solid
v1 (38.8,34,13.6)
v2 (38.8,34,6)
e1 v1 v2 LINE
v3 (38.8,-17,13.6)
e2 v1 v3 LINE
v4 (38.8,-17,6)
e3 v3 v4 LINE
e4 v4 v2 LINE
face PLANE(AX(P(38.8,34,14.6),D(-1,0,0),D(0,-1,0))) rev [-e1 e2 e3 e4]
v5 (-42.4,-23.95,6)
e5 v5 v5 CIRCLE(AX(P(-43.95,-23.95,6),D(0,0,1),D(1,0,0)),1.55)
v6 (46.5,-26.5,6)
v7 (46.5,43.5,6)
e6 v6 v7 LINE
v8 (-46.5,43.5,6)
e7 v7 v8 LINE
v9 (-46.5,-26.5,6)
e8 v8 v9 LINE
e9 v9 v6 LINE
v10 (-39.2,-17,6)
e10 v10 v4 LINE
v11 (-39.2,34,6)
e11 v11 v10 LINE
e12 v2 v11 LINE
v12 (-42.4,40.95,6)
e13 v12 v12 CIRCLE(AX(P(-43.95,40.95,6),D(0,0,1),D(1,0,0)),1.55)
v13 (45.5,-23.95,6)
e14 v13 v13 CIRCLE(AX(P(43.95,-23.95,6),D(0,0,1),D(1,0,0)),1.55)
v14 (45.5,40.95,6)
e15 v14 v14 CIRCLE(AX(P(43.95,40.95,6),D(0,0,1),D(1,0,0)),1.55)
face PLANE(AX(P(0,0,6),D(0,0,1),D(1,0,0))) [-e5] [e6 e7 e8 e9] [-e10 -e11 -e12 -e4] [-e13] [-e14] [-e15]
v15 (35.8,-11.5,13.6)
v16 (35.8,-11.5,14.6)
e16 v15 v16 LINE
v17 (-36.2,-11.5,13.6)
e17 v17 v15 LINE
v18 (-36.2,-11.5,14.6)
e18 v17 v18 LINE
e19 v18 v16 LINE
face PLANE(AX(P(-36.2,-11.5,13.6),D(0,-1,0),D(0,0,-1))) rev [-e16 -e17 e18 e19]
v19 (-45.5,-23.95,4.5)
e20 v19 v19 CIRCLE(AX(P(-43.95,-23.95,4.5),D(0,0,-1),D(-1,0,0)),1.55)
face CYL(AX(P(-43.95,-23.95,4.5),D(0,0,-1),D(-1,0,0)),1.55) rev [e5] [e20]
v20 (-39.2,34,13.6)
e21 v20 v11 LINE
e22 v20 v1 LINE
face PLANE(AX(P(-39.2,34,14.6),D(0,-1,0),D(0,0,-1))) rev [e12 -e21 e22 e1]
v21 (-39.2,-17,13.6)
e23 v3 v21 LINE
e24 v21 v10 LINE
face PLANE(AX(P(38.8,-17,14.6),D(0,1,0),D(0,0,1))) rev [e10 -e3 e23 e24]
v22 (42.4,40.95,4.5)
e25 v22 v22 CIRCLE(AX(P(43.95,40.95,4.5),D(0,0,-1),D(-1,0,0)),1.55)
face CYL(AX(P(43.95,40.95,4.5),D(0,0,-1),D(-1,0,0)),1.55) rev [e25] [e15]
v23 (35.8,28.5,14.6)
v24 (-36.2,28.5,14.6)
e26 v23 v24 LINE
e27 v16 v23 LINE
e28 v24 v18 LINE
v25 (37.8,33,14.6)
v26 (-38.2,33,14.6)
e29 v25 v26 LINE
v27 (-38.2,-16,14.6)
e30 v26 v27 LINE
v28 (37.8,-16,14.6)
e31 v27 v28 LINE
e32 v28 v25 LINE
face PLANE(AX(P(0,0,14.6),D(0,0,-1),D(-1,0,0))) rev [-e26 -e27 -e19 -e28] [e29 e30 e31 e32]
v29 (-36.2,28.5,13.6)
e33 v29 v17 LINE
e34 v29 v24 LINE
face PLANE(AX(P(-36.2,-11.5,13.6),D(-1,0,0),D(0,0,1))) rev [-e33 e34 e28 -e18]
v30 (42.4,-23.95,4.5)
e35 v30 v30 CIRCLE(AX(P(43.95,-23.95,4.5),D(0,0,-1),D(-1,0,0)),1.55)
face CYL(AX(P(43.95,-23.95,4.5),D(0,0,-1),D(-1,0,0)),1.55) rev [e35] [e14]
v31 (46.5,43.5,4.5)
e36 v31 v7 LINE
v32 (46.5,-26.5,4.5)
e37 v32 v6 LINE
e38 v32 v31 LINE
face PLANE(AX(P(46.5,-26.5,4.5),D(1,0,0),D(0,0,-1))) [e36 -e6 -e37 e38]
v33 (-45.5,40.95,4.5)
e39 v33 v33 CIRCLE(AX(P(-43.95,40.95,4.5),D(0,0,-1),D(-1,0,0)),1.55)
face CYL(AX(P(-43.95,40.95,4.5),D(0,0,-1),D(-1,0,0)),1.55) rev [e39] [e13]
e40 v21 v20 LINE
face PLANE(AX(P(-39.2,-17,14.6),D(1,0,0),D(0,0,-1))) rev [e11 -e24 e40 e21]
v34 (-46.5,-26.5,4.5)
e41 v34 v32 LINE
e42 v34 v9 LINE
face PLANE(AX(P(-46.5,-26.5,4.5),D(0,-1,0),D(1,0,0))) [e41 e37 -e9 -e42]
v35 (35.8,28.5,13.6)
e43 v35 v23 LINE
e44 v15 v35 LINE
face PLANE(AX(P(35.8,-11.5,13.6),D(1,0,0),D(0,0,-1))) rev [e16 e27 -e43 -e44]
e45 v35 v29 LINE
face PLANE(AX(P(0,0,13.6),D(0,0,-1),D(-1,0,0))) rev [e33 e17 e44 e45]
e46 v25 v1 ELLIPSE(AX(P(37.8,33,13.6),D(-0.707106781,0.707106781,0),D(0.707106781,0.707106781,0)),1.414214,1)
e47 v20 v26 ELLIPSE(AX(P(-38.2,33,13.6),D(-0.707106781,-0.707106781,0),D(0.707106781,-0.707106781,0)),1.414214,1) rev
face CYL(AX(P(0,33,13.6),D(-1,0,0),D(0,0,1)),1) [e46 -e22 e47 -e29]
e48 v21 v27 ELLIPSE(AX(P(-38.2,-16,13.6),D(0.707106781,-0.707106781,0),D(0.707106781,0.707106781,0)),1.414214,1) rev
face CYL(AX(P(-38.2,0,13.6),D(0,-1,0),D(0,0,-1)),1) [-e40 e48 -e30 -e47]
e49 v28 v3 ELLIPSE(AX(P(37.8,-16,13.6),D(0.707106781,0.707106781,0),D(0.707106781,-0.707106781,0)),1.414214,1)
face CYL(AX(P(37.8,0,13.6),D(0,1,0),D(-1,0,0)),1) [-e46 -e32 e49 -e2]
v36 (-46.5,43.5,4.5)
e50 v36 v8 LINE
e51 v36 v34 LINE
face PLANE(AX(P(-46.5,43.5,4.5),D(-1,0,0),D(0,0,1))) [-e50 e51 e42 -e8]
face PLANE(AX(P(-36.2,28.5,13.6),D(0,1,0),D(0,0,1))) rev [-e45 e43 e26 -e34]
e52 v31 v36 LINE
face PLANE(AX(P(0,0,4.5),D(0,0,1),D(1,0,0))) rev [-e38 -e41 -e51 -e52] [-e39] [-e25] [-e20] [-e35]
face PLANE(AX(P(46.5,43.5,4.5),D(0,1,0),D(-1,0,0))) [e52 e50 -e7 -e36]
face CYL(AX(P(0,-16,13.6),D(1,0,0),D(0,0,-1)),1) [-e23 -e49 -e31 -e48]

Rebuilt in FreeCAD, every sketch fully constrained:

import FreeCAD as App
import Part
import Sketcher
from FreeCAD import Vector
Q = App.Units.Quantity


def edges_at(feature, points):
    """Names of the edges that pass closest to the given points."""
    edges = feature.Shape.Edges
    near = lambda p: min(range(len(edges)), key=lambda i: edges[i].distToShape(Part.Vertex(*p))[0])
    return sorted({f"Edge{near(p) + 1}" for p in points})

doc = App.newDocument("Part")
body = doc.addObject("PartDesign::Body", "Body")

sketch1 = body.newObject("Sketcher::SketchObject", "Sketch")
sketch1.AttachmentSupport = (doc.getObject("XY_Plane"), [""])
sketch1.MapMode = "FlatFace"
sketch1.AttachmentOffset = App.Placement(Vector(0, 0, 6), App.Rotation())
sketch1.addGeometry([
    Part.LineSegment(Vector(-46, 44, 0), Vector(-46, -26, 0)),
    Part.LineSegment(Vector(-46, -26, 0), Vector(46, -26, 0)),
    Part.LineSegment(Vector(46, -26, 0), Vector(46, 44, 0)),
    Part.LineSegment(Vector(46, 44, 0), Vector(-46, 44, 0)),
], False)
sketch1.addConstraint([
    Sketcher.Constraint("Coincident", 0, 2, 1, 1),
    Sketcher.Constraint("Coincident", 1, 2, 2, 1),
    Sketcher.Constraint("Coincident", 2, 2, 3, 1),
    Sketcher.Constraint("Coincident", 3, 2, 0, 1),
    Sketcher.Constraint("Vertical", 0),
    Sketcher.Constraint("Horizontal", 1),
    Sketcher.Constraint("Vertical", 2),
    Sketcher.Constraint("Horizontal", 3),
    Sketcher.Constraint("DistanceX", 1, 1, 1, 2, Q("93 mm")),
    Sketcher.Constraint("DistanceY", 0, 2, 0, 1, Q("70 mm")),
    Sketcher.Constraint("DistanceX", 0, 2, -1, 1, Q("46.5 mm")),
    Sketcher.Constraint("DistanceY", 0, 2, -1, 1, Q("26.5 mm")),
])
pad1 = body.newObject("PartDesign::Pad", "Pad")
pad1.Profile = sketch1
pad1.Length = 1.5
pad1.Reversed = True

sketch2 = body.newObject("Sketcher::SketchObject", "Sketch001")
sketch2.AttachmentSupport = (doc.getObject("XY_Plane"), [""])
sketch2.MapMode = "FlatFace"
sketch2.AttachmentOffset = App.Placement(Vector(0, 0, 6), App.Rotation())
sketch2.addGeometry([
    Part.LineSegment(Vector(-39, 34, 0), Vector(-39, -17, 0)),
    Part.LineSegment(Vector(-39, -17, 0), Vector(39, -17, 0)),
    Part.LineSegment(Vector(39, -17, 0), Vector(39, 34, 0)),
    Part.LineSegment(Vector(39, 34, 0), Vector(-39, 34, 0)),
], False)
sketch2.addConstraint([
    Sketcher.Constraint("Coincident", 0, 2, 1, 1),
    Sketcher.Constraint("Coincident", 1, 2, 2, 1),
    Sketcher.Constraint("Coincident", 2, 2, 3, 1),
    Sketcher.Constraint("Coincident", 3, 2, 0, 1),
    Sketcher.Constraint("Vertical", 0),
    Sketcher.Constraint("Horizontal", 1),
    Sketcher.Constraint("Vertical", 2),
    Sketcher.Constraint("Horizontal", 3),
    Sketcher.Constraint("DistanceX", 1, 1, 1, 2, Q("78 mm")),
    Sketcher.Constraint("DistanceY", 0, 2, 0, 1, Q("51 mm")),
    Sketcher.Constraint("DistanceY", 0, 2, -1, 1, Q("17 mm")),
    Sketcher.Constraint("DistanceX", 0, 2, -1, 1, Q("39.2 mm")),
])
pad2 = body.newObject("PartDesign::Pad", "Pad001")
pad2.Profile = sketch2
pad2.Length = 8.6

sketch3 = body.newObject("Sketcher::SketchObject", "Sketch002")
sketch3.AttachmentSupport = (doc.getObject("XY_Plane"), [""])
sketch3.MapMode = "FlatFace"
sketch3.AttachmentOffset = App.Placement(Vector(0, 0, 4.5), App.Rotation())
sketch3.addGeometry([
    Part.Circle(Vector(-44, -23.9, 0), Vector(0, 0, 1), 1.6),
    Part.Circle(Vector(44, -23.9, 0), Vector(0, 0, 1), 1.6),
    Part.Circle(Vector(-44, 41, 0), Vector(0, 0, 1), 1.6),
    Part.Circle(Vector(44, 41, 0), Vector(0, 0, 1), 1.6),
], False)
sketch3.addConstraint([
    Sketcher.Constraint("Equal", 0, 1),
    Sketcher.Constraint("Equal", 1, 2),
    Sketcher.Constraint("Equal", 2, 3),
    Sketcher.Constraint("Symmetric", 0, 3, 1, 3, -2),
    Sketcher.Constraint("Symmetric", 2, 3, 3, 3, -2),
    Sketcher.Constraint("Vertical", 0, 3, 2, 3),
    Sketcher.Constraint("Diameter", 0, Q("3.1 mm")),
    Sketcher.Constraint("DistanceX", 0, 3, 1, 3, Q("87.9 mm")),
    Sketcher.Constraint("DistanceY", 0, 3, 2, 3, Q("64.9 mm")),
    Sketcher.Constraint("DistanceY", 0, 3, -1, 1, Q("23.95 mm")),
])
doc.recompute()
hole = body.newObject("PartDesign::Hole", "Hole")
hole.Profile = sketch3
hole.ThreadType = "None"
hole.Diameter = 3.1
hole.DepthType = "Dimension"
hole.Depth = 10.1
hole.DrillPoint = "Flat"
hole.Reversed = True
doc.recompute()

fillet = body.newObject("PartDesign::Fillet", "Fillet")
fillet.Base = (hole, edges_at(hole, [
    (-0.2, -17, 14.6),
    (38.8, 8.5, 14.6),
    (-0.2, 34, 14.6),
    (-39.2, 8.5, 14.6),
]))
fillet.Radius = 1

sketch4 = body.newObject("Sketcher::SketchObject", "Sketch003")
sketch4.AttachmentSupport = (doc.getObject("XY_Plane"), [""])
sketch4.MapMode = "FlatFace"
sketch4.AttachmentOffset = App.Placement(Vector(0, 0, 14.6), App.Rotation())
sketch4.addGeometry([
    Part.LineSegment(Vector(-36, 28, 0), Vector(-36, -12, 0)),
    Part.LineSegment(Vector(-36, -12, 0), Vector(36, -12, 0)),
    Part.LineSegment(Vector(36, -12, 0), Vector(36, 28, 0)),
    Part.LineSegment(Vector(36, 28, 0), Vector(-36, 28, 0)),
], False)
sketch4.addConstraint([
    Sketcher.Constraint("Coincident", 0, 2, 1, 1),
    Sketcher.Constraint("Coincident", 1, 2, 2, 1),
    Sketcher.Constraint("Coincident", 2, 2, 3, 1),
    Sketcher.Constraint("Coincident", 3, 2, 0, 1),
    Sketcher.Constraint("Vertical", 0),
    Sketcher.Constraint("Horizontal", 1),
    Sketcher.Constraint("Vertical", 2),
    Sketcher.Constraint("Horizontal", 3),
    Sketcher.Constraint("DistanceX", 1, 1, 1, 2, Q("72 mm")),
    Sketcher.Constraint("DistanceY", 0, 2, 0, 1, Q("40 mm")),
    Sketcher.Constraint("DistanceX", 0, 2, -1, 1, Q("36.2 mm")),
    Sketcher.Constraint("DistanceY", 0, 2, -1, 1, Q("11.5 mm")),
])
pocket1 = body.newObject("PartDesign::Pocket", "Pocket")
pocket1.Profile = sketch4
pocket1.Length = 1

doc.recompute()
